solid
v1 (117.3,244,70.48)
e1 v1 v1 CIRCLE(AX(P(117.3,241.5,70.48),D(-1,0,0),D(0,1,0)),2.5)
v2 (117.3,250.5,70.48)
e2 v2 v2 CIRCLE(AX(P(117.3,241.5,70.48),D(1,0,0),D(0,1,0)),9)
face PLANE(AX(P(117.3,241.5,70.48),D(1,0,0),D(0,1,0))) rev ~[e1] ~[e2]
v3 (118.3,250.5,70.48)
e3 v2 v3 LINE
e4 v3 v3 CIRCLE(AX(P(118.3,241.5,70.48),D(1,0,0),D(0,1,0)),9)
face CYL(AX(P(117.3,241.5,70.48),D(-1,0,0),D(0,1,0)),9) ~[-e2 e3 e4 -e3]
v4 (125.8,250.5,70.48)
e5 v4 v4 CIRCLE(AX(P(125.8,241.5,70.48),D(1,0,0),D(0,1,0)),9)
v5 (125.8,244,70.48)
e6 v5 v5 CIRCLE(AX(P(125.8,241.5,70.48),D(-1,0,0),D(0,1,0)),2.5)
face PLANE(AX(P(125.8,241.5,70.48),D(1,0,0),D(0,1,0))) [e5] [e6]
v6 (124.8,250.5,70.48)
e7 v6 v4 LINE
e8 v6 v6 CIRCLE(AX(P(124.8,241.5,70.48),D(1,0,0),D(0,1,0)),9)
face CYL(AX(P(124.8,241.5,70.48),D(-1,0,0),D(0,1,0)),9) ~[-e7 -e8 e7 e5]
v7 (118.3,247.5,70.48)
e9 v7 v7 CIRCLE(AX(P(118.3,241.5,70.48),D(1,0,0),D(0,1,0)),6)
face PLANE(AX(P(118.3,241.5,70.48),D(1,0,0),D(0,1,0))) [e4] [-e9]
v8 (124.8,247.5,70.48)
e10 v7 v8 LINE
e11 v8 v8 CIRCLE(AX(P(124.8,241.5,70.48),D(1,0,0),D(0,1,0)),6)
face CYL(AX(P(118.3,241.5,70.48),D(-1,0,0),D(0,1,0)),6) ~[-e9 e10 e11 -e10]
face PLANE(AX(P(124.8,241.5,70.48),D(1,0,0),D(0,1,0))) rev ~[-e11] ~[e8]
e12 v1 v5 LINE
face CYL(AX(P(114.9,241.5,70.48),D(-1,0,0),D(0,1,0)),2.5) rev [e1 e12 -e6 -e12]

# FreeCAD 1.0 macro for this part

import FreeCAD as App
import Part
import Sketcher

V = App.Vector

doc = App.newDocument("Part")
body = doc.addObject("PartDesign::Body", "Body")

# Sketch on XY plane
sketch1 = body.newObject("Sketcher::SketchObject", "Sketch")
sketch1.AttachmentSupport = (doc.getObject("XY_Plane"), [""])
sketch1.MapMode = "FlatFace"
sketch1.AttachmentOffset = App.Placement(V(0, 0, -2.4), App.Rotation())
sketch1.addGeometry(Part.Circle(V(0, 0, 0), V(0, 0, 1), 2.5), False)
sketch1.addConstraint([
    Sketcher.Constraint("Coincident", 0, 3, -1, 1),
    Sketcher.Constraint("Diameter", 0, 5.0),
])
pad1 = body.newObject("PartDesign::Pad", "Pad")
pad1.Profile = sketch1
pad1.Length = 14.5
body2 = doc.addObject("PartDesign::Body", "Body001")

# Sketch on XY plane
sketch2 = body2.newObject("Sketcher::SketchObject", "Sketch001")
sketch2.AttachmentSupport = (doc.getObject("XY_Plane001"), [""])
sketch2.MapMode = "FlatFace"
sketch2.AttachmentOffset = App.Placement(V(0, 0, 1), App.Rotation())
sketch2.addGeometry(Part.Circle(V(0, 0, 0), V(0, 0, 1), 6), False)
sketch2.addConstraint([
    Sketcher.Constraint("Coincident", 0, 3, -1, 1),
    Sketcher.Constraint("Diameter", 0, 12.0),
])
pad2 = body2.newObject("PartDesign::Pad", "Pad001")
pad2.Profile = sketch2
pad2.Length = 6.5
body3 = doc.addObject("PartDesign::Body", "Body002")

# Sketch on XY plane
sketch3 = body3.newObject("Sketcher::SketchObject", "Sketch002")
sketch3.AttachmentSupport = (doc.getObject("XY_Plane002"), [""])
sketch3.MapMode = "FlatFace"
sketch3.AttachmentOffset = App.Placement(V(0, 0, 7.5), App.Rotation())
sketch3.addGeometry(Part.Circle(V(0, 0, 0), V(0, 0, 1), 9), False)
sketch3.addConstraint([
    Sketcher.Constraint("Coincident", 0, 3, -1, 1),
    Sketcher.Constraint("Diameter", 0, 18.0),
])
pad3 = body3.newObject("PartDesign::Pad", "Pad002")
pad3.Profile = sketch3
pad3.Length = 1
body4 = doc.addObject("PartDesign::Body", "Body003")

# Sketch on XY plane
sketch4 = body4.newObject("Sketcher::SketchObject", "Sketch003")
sketch4.AttachmentSupport = (doc.getObject("XY_Plane003"), [""])
sketch4.MapMode = "FlatFace"
sketch4.addGeometry(Part.Circle(V(0, 0, 0), V(0, 0, 1), 9), False)
sketch4.addConstraint([
    Sketcher.Constraint("Coincident", 0, 3, -1, 1),
    Sketcher.Constraint("Diameter", 0, 18.0),
])
pad4 = body4.newObject("PartDesign::Pad", "Pad003")
pad4.Profile = sketch4
pad4.Length = 1
doc.recompute()

boolean = body4.newObject("PartDesign::Boolean", "Boolean")
boolean.Type = "Fuse"
boolean.addObjects([body2])
doc.recompute()

boolean2 = body4.newObject("PartDesign::Boolean", "Boolean001")
boolean2.Type = "Fuse"
boolean2.addObjects([body3])
doc.recompute()

boolean3 = body4.newObject("PartDesign::Boolean", "Boolean002")
boolean3.Type = "Cut"
boolean3.addObjects([body])
body5 = doc.addObject("PartDesign::Body", "Body004")
doc.recompute()

body4.Placement = App.Placement(V(0, 0, 0), App.Rotation(V(1, 0, 0), 90))
boolean4 = body5.newObject("PartDesign::Boolean", "Boolean003")
boolean4.Type = "Fuse"
boolean4.addObjects([body4])
body6 = doc.addObject("PartDesign::Body", "Body005")
doc.recompute()

body5.Placement = App.Placement(V(117.3, 241.5, 70.48), App.Rotation(V(0, 0, 1), 90))
boolean5 = body6.newObject("PartDesign::Boolean", "Boolean004")
boolean5.Type = "Fuse"
boolean5.addObjects([body5])

doc.recompute()
